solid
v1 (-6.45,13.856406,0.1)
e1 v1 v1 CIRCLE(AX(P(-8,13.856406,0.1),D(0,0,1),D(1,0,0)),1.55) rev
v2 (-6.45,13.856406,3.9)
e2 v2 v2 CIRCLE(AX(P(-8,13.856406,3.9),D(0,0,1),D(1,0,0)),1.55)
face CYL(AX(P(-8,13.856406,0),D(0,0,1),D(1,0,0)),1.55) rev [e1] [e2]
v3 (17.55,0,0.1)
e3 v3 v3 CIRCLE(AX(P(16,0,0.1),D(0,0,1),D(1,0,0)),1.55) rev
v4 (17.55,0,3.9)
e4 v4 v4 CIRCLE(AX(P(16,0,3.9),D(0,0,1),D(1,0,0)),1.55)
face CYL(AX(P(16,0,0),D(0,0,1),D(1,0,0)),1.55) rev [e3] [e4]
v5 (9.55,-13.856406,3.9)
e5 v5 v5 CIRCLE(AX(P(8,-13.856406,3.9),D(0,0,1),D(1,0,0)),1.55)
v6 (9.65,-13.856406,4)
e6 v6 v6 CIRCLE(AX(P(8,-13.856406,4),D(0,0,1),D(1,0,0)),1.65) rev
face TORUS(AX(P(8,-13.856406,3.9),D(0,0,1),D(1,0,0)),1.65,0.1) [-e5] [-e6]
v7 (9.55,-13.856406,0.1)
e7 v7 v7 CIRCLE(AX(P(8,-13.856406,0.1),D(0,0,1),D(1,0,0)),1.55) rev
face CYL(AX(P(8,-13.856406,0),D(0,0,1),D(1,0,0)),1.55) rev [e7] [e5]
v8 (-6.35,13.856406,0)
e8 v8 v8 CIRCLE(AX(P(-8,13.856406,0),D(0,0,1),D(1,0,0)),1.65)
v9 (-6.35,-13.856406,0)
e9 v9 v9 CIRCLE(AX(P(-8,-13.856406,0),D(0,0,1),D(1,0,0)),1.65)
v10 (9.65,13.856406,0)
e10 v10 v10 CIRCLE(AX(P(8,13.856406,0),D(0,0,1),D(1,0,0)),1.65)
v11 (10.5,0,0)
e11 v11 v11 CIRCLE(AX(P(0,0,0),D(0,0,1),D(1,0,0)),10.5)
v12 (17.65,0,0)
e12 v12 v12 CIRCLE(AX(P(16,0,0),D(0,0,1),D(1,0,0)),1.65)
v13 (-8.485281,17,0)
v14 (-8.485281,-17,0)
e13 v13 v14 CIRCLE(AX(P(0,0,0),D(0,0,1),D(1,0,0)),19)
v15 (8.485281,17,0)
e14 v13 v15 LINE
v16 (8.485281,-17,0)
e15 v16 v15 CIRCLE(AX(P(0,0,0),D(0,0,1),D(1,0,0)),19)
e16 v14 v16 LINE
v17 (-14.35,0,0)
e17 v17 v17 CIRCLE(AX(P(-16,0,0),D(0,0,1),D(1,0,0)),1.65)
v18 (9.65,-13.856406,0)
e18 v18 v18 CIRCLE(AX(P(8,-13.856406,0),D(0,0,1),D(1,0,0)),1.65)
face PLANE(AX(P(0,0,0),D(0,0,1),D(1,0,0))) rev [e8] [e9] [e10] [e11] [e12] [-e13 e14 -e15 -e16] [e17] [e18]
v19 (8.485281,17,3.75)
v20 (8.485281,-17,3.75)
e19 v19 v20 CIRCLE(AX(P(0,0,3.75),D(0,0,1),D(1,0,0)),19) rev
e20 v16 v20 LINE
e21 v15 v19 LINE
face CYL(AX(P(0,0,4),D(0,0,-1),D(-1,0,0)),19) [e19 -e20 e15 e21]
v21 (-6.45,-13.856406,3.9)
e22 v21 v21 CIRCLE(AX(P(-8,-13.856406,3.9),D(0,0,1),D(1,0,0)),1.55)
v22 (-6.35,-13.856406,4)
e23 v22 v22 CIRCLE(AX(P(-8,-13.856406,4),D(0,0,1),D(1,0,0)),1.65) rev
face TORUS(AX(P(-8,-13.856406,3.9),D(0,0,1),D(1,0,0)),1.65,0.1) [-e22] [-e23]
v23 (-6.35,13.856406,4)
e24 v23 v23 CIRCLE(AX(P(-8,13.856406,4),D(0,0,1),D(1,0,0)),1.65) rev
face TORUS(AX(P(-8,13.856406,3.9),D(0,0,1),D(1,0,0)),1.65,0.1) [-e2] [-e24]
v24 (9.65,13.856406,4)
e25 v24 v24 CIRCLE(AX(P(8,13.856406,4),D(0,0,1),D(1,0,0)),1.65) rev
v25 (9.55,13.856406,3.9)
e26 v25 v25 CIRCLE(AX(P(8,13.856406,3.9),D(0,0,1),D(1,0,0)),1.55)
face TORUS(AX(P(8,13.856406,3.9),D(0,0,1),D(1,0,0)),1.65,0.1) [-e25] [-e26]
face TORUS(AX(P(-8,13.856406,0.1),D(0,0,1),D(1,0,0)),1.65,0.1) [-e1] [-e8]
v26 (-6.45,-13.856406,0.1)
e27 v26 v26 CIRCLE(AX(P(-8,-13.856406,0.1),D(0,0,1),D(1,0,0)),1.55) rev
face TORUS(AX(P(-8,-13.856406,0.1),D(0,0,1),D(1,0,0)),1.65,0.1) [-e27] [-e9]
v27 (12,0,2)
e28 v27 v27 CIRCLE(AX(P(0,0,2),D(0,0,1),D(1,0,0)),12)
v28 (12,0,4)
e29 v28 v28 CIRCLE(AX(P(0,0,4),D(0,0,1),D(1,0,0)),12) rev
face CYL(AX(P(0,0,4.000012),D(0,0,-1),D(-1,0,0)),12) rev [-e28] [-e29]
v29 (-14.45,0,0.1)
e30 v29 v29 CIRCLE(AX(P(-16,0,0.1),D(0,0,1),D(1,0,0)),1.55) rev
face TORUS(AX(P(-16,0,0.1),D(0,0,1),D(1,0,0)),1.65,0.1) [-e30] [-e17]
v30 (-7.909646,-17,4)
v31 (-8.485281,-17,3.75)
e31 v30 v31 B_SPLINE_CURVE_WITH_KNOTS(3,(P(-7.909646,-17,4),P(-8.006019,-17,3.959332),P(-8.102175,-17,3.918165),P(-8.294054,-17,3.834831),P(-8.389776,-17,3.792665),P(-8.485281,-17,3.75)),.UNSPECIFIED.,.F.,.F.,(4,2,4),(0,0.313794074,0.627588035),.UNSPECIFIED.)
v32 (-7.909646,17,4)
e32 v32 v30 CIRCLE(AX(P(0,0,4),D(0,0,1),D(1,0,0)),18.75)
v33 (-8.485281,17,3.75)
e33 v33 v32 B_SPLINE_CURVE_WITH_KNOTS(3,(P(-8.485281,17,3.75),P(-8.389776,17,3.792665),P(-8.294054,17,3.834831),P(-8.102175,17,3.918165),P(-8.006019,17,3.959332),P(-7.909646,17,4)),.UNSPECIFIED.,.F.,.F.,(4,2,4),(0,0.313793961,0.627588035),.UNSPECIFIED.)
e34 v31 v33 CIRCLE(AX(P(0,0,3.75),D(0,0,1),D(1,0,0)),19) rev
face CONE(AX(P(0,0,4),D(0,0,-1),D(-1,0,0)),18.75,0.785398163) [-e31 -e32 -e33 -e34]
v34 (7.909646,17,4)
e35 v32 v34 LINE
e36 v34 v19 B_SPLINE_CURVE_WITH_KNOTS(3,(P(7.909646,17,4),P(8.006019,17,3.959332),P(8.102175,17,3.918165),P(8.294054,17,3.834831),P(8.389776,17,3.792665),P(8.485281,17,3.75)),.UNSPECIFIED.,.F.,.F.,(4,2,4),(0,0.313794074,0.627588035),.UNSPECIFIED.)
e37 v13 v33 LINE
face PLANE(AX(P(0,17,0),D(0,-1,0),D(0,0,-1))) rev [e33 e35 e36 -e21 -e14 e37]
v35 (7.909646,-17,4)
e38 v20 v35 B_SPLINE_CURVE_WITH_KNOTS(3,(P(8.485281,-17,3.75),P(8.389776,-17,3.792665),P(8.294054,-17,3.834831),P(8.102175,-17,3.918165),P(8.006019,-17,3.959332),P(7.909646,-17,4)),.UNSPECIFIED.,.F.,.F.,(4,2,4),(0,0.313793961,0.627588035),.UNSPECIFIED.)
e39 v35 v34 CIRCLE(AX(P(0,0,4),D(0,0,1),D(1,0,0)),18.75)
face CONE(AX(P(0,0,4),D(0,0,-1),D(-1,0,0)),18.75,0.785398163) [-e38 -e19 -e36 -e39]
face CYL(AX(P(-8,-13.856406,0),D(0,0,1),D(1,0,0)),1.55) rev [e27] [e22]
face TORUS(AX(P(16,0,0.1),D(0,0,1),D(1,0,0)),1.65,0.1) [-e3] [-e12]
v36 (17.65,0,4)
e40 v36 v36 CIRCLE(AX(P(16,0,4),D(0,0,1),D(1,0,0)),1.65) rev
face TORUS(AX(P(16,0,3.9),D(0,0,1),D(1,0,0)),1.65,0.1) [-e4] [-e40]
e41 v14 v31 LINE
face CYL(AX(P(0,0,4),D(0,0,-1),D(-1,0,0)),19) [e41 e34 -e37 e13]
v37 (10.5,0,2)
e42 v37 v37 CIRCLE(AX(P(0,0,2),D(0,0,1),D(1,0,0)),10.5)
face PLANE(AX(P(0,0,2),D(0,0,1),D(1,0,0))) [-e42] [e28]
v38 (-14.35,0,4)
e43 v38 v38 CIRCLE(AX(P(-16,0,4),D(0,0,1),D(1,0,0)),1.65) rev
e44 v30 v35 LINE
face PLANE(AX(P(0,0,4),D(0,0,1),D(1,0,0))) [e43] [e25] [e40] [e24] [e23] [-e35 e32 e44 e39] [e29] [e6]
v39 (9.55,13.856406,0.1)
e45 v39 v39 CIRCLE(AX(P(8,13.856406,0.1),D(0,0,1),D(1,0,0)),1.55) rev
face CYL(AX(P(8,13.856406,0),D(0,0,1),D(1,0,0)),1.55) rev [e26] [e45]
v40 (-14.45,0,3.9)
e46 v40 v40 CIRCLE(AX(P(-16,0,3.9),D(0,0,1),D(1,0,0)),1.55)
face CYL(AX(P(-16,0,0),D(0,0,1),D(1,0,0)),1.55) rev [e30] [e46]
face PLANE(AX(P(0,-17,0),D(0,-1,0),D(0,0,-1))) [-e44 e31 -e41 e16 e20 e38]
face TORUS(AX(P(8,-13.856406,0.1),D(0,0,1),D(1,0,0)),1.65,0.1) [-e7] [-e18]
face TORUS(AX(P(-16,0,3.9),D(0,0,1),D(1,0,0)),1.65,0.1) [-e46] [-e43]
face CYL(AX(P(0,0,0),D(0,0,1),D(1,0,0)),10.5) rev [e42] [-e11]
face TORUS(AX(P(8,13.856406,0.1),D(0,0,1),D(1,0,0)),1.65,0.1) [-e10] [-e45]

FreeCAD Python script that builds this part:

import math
import FreeCAD as App
import Part
import Sketcher


def edges_at(feature, points):
    """Names of the edges that pass closest to the given points."""
    edges = feature.Shape.Edges
    near = lambda p: min(range(len(edges)), key=lambda i: edges[i].distToShape(Part.Vertex(*p))[0])
    return sorted({f"Edge{near(p) + 1}" for p in points})

doc = App.newDocument("Part")
body = doc.addObject("PartDesign::Body", "Body")

sketch1 = doc.addObject("Sketcher::SketchObject", "Sketch")
body.addObject(sketch1)
sketch1.AttachmentSupport = (doc.XY_Plane, [""])
sketch1.MapMode = "FlatFace"
sketch1.addGeometry(Part.Circle(App.Vector(0, 0, 0), App.Vector(0, 0, 1), 19), False)
sketch1.addConstraint([
    Sketcher.Constraint("Coincident", 0, 3, -1, 1),
    Sketcher.Constraint("Diameter", 0, 38.0),
])
pad1 = doc.addObject("PartDesign::Pad", "Pad")
body.addObject(pad1)
pad1.Profile = sketch1
pad1.Length = 4

sketch2 = doc.addObject("Sketcher::SketchObject", "Sketch001")
body.addObject(sketch2)
sketch2.AttachmentSupport = (doc.XY_Plane, [""])
sketch2.MapMode = "FlatFace"
sketch2.AttachmentOffset = App.Placement(App.Vector(0, 0, 4), App.Rotation())
sketch2.addGeometry([
    Part.LineSegment(App.Vector(8, -17, 0), App.Vector(-8, -17, 0)),
    Part.ArcOfCircle(Part.Circle(App.Vector(0, 0, 0), App.Vector(0, 0, 1), 19), math.radians(-117), math.radians(-63)),
    Part.ArcOfCircle(Part.Circle(App.Vector(0, 0, 0), App.Vector(0, 0, 1), 19), math.radians(90), math.radians(117)),
    Part.LineSegment(App.Vector(-8, 17, 0), App.Vector(8, 17, 0)),
    Part.ArcOfCircle(Part.Circle(App.Vector(0, 0, 0), App.Vector(0, 0, 1), 19), math.radians(63), math.radians(90)),
], False)
sketch2.addConstraint([
    Sketcher.Constraint("Coincident", 0, 1, 1, 2),
    Sketcher.Constraint("Coincident", 1, 1, 0, 2),
    Sketcher.Constraint("Coincident", 2, 2, 3, 1),
    Sketcher.Constraint("Coincident", 3, 2, 4, 1),
    Sketcher.Constraint("Tangent", 4, 2, 2, 1),
    Sketcher.Constraint("Horizontal", 0),
    Sketcher.Constraint("Horizontal", 3),
    Sketcher.Constraint("Coincident", 1, 3, -1, 1),
    Sketcher.Constraint("Coincident", 2, 3, -1, 1),
    Sketcher.Constraint("Equal", 1, 2),
    Sketcher.Constraint("Equal", 2, 4),
    Sketcher.Constraint("PointOnObject", 4, 2, -2),
    Sketcher.Constraint("Vertical", 1, 1, 2, 2),
    Sketcher.Constraint("Radius", 1, 19.0),
    Sketcher.Constraint("DistanceY", 0, 1, -1, 1, 17.0),
])
pocket1 = doc.addObject("PartDesign::Pocket", "Pocket")
body.addObject(pocket1)
pocket1.Profile = sketch2
pocket1.Type = "ThroughAll"
pocket1.Midplane = True

sketch3 = doc.addObject("Sketcher::SketchObject", "Sketch002")
body.addObject(sketch3)
sketch3.AttachmentSupport = (doc.XY_Plane, [""])
sketch3.MapMode = "FlatFace"
sketch3.AttachmentOffset = App.Placement(App.Vector(0, 0, 4), App.Rotation())
sketch3.addGeometry([
    Part.Circle(App.Vector(-16, 0, 0), App.Vector(0, 0, 1), 1.6),
    Part.Circle(App.Vector(-8, 13.9, 0), App.Vector(0, 0, 1), 1.6),
    Part.Circle(App.Vector(8, 13.9, 0), App.Vector(0, 0, 1), 1.6),
    Part.Circle(App.Vector(16, 0, 0), App.Vector(0, 0, 1), 1.6),
    Part.Circle(App.Vector(8, -13.9, 0), App.Vector(0, 0, 1), 1.6),
    Part.Circle(App.Vector(-8, -13.9, 0), App.Vector(0, 0, 1), 1.6),
], False)
sketch3.addConstraint([
    Sketcher.Constraint("Equal", 0, 1),
    Sketcher.Constraint("Equal", 1, 2),
    Sketcher.Constraint("Equal", 2, 3),
    Sketcher.Constraint("Equal", 3, 4),
    Sketcher.Constraint("Equal", 4, 5),
    Sketcher.Constraint("Symmetric", 0, 3, 3, 3, -1, 1),
    Sketcher.Constraint("Symmetric", 1, 3, 4, 3, -1, 1),
    Sketcher.Constraint("Symmetric", 2, 3, 5, 3, -1, 1),
    Sketcher.Constraint("Symmetric", 1, 3, 2, 3, -2),
    Sketcher.Constraint("PointOnObject", 0, 3, -1),
    Sketcher.Constraint("Diameter", 0, 3.1),
    Sketcher.Constraint("DistanceX", 0, 3, -1, 1, 16.0),
    Sketcher.Constraint("DistanceX", 1, 3, -1, 1, 8.0),
    Sketcher.Constraint("DistanceY", -1, 1, 1, 3, 13.856406),
])
pocket2 = doc.addObject("PartDesign::Pocket", "Pocket001")
body.addObject(pocket2)
pocket2.Profile = sketch3
pocket2.Type = "ThroughAll"
pocket2.Midplane = True
doc.recompute()

fillet = doc.addObject("PartDesign::Fillet", "Fillet")
body.addObject(fillet)
fillet.Base = (pocket2, edges_at(pocket2, [
    (-17.55, 0, 4),
    (-17.55, 0, 0),
    (-9.55, -13.856, 4),
    (-9.55, -13.856, 0),
    (6.45, -13.856, 4),
    (6.45, -13.856, 0),
    (14.45, 0, 4),
    (14.45, 0, 0),
    (6.45, 13.856, 4),
    (6.45, 13.856, 0),
    (-9.55, 13.856, 4),
    (-9.55, 13.856, 0),
]))
fillet.Radius = 0.1

sketch4 = doc.addObject("Sketcher::SketchObject", "Sketch003")
body.addObject(sketch4)
sketch4.AttachmentSupport = (doc.XY_Plane, [""])
sketch4.MapMode = "FlatFace"
sketch4.AttachmentOffset = App.Placement(App.Vector(0, 0, 4), App.Rotation())
sketch4.addGeometry(Part.Circle(App.Vector(0, 0, 0), App.Vector(0, 0, 1), 12), False)
sketch4.addConstraint([
    Sketcher.Constraint("Coincident", 0, 3, -1, 1),
    Sketcher.Constraint("Diameter", 0, 24.0),
])
pocket3 = doc.addObject("PartDesign::Pocket", "Pocket002")
body.addObject(pocket3)
pocket3.Profile = sketch4
pocket3.Type = "TwoLengths"
pocket3.Length = 1
pocket3.Length2 = 2
pocket3.Reversed = True

sketch5 = doc.addObject("Sketcher::SketchObject", "Sketch004")
body.addObject(sketch5)
sketch5.AttachmentSupport = (doc.XY_Plane, [""])
sketch5.MapMode = "FlatFace"
sketch5.AttachmentOffset = App.Placement(App.Vector(0, 0, 2), App.Rotation())
sketch5.addGeometry(Part.Circle(App.Vector(0, 0, 0), App.Vector(0, 0, 1), 10), False)
sketch5.addConstraint([
    Sketcher.Constraint("Coincident", 0, 3, -1, 1),
    Sketcher.Constraint("Diameter", 0, 21.0),
])
pocket4 = doc.addObject("PartDesign::Pocket", "Pocket003")
body.addObject(pocket4)
pocket4.Profile = sketch5
pocket4.Length = 2
doc.recompute()

chamfer = doc.addObject("PartDesign::Chamfer", "Chamfer")
body.addObject(chamfer)
chamfer.Base = (pocket4, edges_at(pocket4, [(-19, 0, 4), (19, 0, 4)]))
chamfer.Size = 0.25

doc.recompute()
